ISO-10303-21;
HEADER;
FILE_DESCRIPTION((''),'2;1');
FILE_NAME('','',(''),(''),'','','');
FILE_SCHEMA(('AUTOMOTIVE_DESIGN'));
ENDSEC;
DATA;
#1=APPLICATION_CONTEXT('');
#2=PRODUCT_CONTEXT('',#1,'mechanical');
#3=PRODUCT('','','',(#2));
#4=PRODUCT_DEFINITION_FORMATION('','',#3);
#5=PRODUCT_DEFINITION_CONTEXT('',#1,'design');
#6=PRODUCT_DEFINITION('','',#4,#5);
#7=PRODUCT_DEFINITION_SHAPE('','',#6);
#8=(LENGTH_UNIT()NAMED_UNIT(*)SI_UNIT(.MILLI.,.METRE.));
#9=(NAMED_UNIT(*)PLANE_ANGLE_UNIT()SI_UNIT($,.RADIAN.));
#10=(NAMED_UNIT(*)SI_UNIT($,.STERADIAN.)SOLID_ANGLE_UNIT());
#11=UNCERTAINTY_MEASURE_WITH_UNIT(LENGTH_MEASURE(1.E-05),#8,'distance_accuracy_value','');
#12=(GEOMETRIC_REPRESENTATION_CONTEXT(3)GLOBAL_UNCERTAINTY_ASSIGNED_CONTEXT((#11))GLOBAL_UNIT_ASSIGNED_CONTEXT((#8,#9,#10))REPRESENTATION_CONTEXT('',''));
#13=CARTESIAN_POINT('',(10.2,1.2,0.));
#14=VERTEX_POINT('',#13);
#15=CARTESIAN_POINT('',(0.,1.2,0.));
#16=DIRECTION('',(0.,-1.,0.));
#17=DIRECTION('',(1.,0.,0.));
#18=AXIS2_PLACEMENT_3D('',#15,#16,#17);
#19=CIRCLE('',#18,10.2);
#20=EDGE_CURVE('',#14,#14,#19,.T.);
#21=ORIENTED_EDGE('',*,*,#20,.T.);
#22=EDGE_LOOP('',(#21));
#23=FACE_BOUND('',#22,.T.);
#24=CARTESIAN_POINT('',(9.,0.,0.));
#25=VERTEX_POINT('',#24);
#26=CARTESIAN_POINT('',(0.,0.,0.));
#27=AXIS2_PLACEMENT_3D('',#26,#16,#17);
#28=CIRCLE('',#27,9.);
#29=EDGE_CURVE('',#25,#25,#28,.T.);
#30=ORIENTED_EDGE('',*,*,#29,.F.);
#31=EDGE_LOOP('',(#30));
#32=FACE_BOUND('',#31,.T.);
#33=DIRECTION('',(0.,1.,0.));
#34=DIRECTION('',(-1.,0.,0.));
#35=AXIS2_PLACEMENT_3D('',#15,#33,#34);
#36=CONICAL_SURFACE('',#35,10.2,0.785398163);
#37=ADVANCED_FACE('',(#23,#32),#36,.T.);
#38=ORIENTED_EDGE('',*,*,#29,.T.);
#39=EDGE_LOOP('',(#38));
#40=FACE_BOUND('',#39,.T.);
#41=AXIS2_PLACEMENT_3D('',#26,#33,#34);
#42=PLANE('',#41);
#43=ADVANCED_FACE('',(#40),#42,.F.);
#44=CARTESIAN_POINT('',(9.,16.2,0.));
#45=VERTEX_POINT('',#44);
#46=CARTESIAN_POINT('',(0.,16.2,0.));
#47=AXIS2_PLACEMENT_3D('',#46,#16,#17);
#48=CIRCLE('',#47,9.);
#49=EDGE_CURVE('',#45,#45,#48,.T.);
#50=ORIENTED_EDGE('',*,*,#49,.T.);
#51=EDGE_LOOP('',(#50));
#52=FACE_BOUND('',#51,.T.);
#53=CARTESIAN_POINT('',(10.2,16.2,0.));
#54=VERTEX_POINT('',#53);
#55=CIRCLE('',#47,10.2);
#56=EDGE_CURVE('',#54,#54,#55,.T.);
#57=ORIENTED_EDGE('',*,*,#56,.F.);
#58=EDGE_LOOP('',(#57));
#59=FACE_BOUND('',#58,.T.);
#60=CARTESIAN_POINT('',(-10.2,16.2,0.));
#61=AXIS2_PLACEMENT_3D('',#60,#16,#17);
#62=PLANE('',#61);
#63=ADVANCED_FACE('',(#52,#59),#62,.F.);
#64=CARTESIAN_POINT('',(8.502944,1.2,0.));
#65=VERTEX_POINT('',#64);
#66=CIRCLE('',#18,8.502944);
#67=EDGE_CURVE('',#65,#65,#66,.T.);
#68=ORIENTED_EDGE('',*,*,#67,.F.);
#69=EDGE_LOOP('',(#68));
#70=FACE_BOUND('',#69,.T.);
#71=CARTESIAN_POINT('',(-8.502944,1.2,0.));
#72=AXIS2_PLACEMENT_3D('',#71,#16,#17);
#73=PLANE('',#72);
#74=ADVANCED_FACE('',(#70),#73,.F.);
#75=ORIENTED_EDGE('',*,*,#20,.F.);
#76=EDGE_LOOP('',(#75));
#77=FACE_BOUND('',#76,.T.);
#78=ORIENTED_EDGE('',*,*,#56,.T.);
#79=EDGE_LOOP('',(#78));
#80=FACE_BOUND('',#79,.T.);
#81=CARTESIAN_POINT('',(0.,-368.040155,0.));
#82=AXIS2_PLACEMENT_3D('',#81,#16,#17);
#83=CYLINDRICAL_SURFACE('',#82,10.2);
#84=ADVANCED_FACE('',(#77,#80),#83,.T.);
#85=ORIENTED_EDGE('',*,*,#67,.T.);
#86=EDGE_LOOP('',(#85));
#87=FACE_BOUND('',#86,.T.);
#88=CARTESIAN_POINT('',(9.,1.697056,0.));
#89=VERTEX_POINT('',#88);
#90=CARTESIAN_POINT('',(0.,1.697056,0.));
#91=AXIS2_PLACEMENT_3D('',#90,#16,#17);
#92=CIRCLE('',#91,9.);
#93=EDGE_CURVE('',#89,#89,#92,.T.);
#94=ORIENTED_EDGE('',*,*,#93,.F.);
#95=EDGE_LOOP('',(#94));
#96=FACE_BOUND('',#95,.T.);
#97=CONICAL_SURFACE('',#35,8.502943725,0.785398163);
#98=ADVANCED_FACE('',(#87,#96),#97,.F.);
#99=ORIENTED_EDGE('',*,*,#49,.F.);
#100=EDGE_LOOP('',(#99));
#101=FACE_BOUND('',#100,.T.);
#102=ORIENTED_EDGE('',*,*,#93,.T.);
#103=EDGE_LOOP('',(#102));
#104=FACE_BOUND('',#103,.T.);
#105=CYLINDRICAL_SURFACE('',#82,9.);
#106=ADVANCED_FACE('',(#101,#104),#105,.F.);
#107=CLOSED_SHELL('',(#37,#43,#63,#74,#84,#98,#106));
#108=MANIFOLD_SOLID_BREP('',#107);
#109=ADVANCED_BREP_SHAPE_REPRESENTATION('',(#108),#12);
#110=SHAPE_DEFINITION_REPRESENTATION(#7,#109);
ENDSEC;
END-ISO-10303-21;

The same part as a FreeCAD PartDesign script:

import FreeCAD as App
import Part
import Sketcher
from FreeCAD import Vector
Q = App.Units.Quantity


def add_polygon(sketch, points):
    """Adds a closed chain of lines whose ends are joined by coincident constraints."""
    first, n = sketch.GeometryCount, len(points)
    for a, b in zip(points, points[1:] + points[:1]):
        sketch.addGeometry(Part.LineSegment(App.Vector(*a, 0), App.Vector(*b, 0)), False)
    for i in range(n):
        sketch.addConstraint(Sketcher.Constraint("Coincident", first + i, 2, first + (i + 1) % n, 1))

doc = App.newDocument("Part")
params = doc.addObject("Spreadsheet::Sheet", "Params")
for row, (alias, value) in enumerate([
    ("sketch1_width", "9 mm"),
    ("sketch1_height", "15 mm"),
    ("sketch1_width2", "1.2 mm"),
    ("revolution_angle", "360 deg"),
], start=1):
    params.set(f"A{row}", alias)
    params.set(f"B{row}", "=" + value)
    params.setAlias(f"B{row}", alias)

body = doc.addObject("PartDesign::Body", "Body")

# Sketch on XY plane
sketch1 = body.newObject("Sketcher::SketchObject", "Sketch")
sketch1.AttachmentSupport = (doc.getObject("XY_Plane"), [""])
sketch1.MapMode = "FlatFace"
add_polygon(sketch1, [(-9, 0), (0, 0), (0, 1.2), (-8.5, 1.2), (-9, 1.7), (-9, 16.2), (-10.2, 16.2), (-10.2, 1.2)])  # lines 0-7
sketch1.addConstraint(Sketcher.Constraint("Horizontal", 0))
sketch1.addConstraint(Sketcher.Constraint("Vertical", 1))
sketch1.addConstraint(Sketcher.Constraint("Horizontal", 2))
sketch1.addConstraint(Sketcher.Constraint("Vertical", 4))
sketch1.addConstraint(Sketcher.Constraint("Horizontal", 5))
sketch1.addConstraint(Sketcher.Constraint("Vertical", 6))
sketch1.addConstraint(Sketcher.Constraint("Coincident", 0, 2, -1, 1))
sketch1.addConstraint(Sketcher.Constraint("Parallel", 3, 7))
sketch1.addConstraint(Sketcher.Constraint("Horizontal", 2, 2, 6, 2))
sketch1.addConstraint(Sketcher.Constraint("Vertical", 4, 2, 7, 2))
sketch1.addConstraint(Sketcher.Constraint("Equal", 5, 1))
sketch1.addConstraint(Sketcher.Constraint("DistanceX", 0, 1, 0, 2, Q("9 mm")))
sketch1.addConstraint(Sketcher.Constraint("DistanceY", 6, 2, 6, 1, Q("15 mm")))
sketch1.addConstraint(Sketcher.Constraint("DistanceX", 5, 2, 5, 1, Q("1.2 mm")))
sketch1.addConstraint(Sketcher.Constraint("DistanceX", 2, 2, 2, 1, Q("8.502944 mm")))
sketch1.setExpression("Constraints[19]", "Params.sketch1_width")
sketch1.setExpression("Constraints[20]", "Params.sketch1_height")
sketch1.setExpression("Constraints[21]", "Params.sketch1_width2")
revolution = body.newObject("PartDesign::Revolution", "Revolution")
revolution.Profile = sketch1
revolution.ReferenceAxis = (sketch1, ["V_Axis"])
revolution.setExpression("Angle", "Params.revolution_angle")

doc.recompute()
